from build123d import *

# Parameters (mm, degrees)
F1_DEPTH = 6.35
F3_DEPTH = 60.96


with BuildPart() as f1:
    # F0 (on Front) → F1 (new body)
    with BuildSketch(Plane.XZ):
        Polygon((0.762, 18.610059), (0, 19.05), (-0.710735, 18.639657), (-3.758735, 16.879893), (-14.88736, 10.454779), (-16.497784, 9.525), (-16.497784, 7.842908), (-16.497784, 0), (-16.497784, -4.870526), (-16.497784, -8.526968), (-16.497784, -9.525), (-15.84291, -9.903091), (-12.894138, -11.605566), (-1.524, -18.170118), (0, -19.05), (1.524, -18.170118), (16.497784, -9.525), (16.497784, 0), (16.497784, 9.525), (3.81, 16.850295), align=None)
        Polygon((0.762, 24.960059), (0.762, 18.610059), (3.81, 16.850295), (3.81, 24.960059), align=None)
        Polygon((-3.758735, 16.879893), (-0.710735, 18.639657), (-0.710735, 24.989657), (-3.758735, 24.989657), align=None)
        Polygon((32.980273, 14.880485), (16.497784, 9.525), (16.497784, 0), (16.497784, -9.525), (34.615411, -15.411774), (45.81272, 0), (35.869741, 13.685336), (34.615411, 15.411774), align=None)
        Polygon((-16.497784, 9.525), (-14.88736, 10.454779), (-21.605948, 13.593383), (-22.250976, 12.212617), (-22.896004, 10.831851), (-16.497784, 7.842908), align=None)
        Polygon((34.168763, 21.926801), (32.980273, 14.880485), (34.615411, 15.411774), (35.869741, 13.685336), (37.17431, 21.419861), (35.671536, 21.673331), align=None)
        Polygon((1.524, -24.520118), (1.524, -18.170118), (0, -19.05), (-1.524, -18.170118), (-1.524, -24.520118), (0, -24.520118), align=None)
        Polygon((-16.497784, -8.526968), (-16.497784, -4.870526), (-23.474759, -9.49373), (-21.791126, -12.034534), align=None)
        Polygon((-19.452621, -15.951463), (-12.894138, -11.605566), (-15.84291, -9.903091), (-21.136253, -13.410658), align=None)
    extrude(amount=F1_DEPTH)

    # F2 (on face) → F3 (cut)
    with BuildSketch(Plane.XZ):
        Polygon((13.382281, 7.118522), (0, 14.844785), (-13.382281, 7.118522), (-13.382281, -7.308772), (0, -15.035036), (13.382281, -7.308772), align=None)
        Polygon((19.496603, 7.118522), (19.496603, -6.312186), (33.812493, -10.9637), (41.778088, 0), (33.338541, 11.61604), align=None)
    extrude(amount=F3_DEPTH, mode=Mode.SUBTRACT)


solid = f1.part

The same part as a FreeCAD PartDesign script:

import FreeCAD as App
import Part
import Sketcher

V = App.Vector
Q = App.Units.Quantity

doc = App.newDocument("Part")
body = doc.addObject("PartDesign::Body", "Body")

sketch1 = doc.addObject("Sketcher::SketchObject", "Sketch")
body.addObject(sketch1)
sketch1.AttachmentSupport = (doc.XZ_Plane, [""])
sketch1.MapMode = "FlatFace"
sketch1.addGeometry(Part.LineSegment(V(0, 19.1, 0), V(-0.7, 18.6, 0)), False)
sketch1.addGeometry(Part.LineSegment(V(-0.7, 18.6, 0), V(-0.7, 25, 0)), False)
sketch1.addGeometry(Part.LineSegment(V(-0.7, 25, 0), V(-3.8, 25, 0)), False)
sketch1.addGeometry(Part.LineSegment(V(-3.8, 25, 0), V(-3.8, 16.9, 0)), False)
sketch1.addGeometry(Part.LineSegment(V(-3.8, 16.9, 0), V(-14.9, 10.5, 0)), False)
sketch1.addGeometry(Part.LineSegment(V(-14.9, 10.5, 0), V(-21.6, 13.6, 0)), False)
sketch1.addGeometry(Part.LineSegment(V(-21.6, 13.6, 0), V(-22.9, 10.8, 0)), False)
sketch1.addGeometry(Part.LineSegment(V(-22.9, 10.8, 0), V(-16.5, 7.8, 0)), False)
sketch1.addGeometry(Part.LineSegment(V(-16.5, 7.8, 0), V(-16.5, -4.9, 0)), False)
sketch1.addGeometry(Part.LineSegment(V(-16.5, -4.9, 0), V(-23.5, -9.5, 0)), False)
sketch1.addGeometry(Part.LineSegment(V(-23.5, -9.5, 0), V(-21.8, -12, 0)), False)
sketch1.addGeometry(Part.LineSegment(V(-21.8, -12, 0), V(-16.5, -8.5, 0)), False)
sketch1.addGeometry(Part.LineSegment(V(-16.5, -8.5, 0), V(-16.5, -9.5, 0)), False)
sketch1.addGeometry(Part.LineSegment(V(-16.5, -9.5, 0), V(-15.8, -9.9, 0)), False)
sketch1.addGeometry(Part.LineSegment(V(-15.8, -9.9, 0), V(-21.1, -13.4, 0)), False)
sketch1.addGeometry(Part.LineSegment(V(-21.1, -13.4, 0), V(-19.5, -16, 0)), False)
sketch1.addGeometry(Part.LineSegment(V(-19.5, -16, 0), V(-12.9, -11.6, 0)), False)
sketch1.addGeometry(Part.LineSegment(V(-12.9, -11.6, 0), V(-1.5, -18.2, 0)), False)
sketch1.addGeometry(Part.LineSegment(V(-1.5, -18.2, 0), V(-1.5, -24.5, 0)), False)
sketch1.addGeometry(Part.LineSegment(V(-1.5, -24.5, 0), V(1.5, -24.5, 0)), False)
sketch1.addGeometry(Part.LineSegment(V(1.5, -24.5, 0), V(1.5, -18.2, 0)), False)
sketch1.addGeometry(Part.LineSegment(V(1.5, -18.2, 0), V(16.5, -9.5, 0)), False)
sketch1.addGeometry(Part.LineSegment(V(16.5, -9.5, 0), V(34.6, -15.4, 0)), False)
sketch1.addGeometry(Part.LineSegment(V(34.6, -15.4, 0), V(45.8, 0, 0)), False)
sketch1.addGeometry(Part.LineSegment(V(45.8, 0, 0), V(35.9, 13.7, 0)), False)
sketch1.addGeometry(Part.LineSegment(V(35.9, 13.7, 0), V(37.2, 21.4, 0)), False)
sketch1.addGeometry(Part.LineSegment(V(37.2, 21.4, 0), V(35.7, 21.7, 0)), False)
sketch1.addGeometry(Part.LineSegment(V(35.7, 21.7, 0), V(34.2, 21.9, 0)), False)
sketch1.addGeometry(Part.LineSegment(V(34.2, 21.9, 0), V(33, 14.9, 0)), False)
sketch1.addGeometry(Part.LineSegment(V(33, 14.9, 0), V(16.5, 9.5, 0)), False)
sketch1.addGeometry(Part.LineSegment(V(16.5, 9.5, 0), V(3.8, 16.9, 0)), False)
sketch1.addGeometry(Part.LineSegment(V(3.8, 16.9, 0), V(3.8, 25, 0)), False)
sketch1.addGeometry(Part.LineSegment(V(3.8, 25, 0), V(0.8, 25, 0)), False)
sketch1.addGeometry(Part.LineSegment(V(0.8, 25, 0), V(0.8, 18.6, 0)), False)
sketch1.addGeometry(Part.LineSegment(V(0.8, 18.6, 0), V(0, 19.1, 0)), False)
sketch1.addConstraint(Sketcher.Constraint("Coincident", 0, 2, 1, 1))
sketch1.addConstraint(Sketcher.Constraint("Coincident", 1, 2, 2, 1))
sketch1.addConstraint(Sketcher.Constraint("Coincident", 2, 2, 3, 1))
sketch1.addConstraint(Sketcher.Constraint("Coincident", 3, 2, 4, 1))
sketch1.addConstraint(Sketcher.Constraint("Coincident", 4, 2, 5, 1))
sketch1.addConstraint(Sketcher.Constraint("Coincident", 5, 2, 6, 1))
sketch1.addConstraint(Sketcher.Constraint("Coincident", 6, 2, 7, 1))
sketch1.addConstraint(Sketcher.Constraint("Coincident", 7, 2, 8, 1))
sketch1.addConstraint(Sketcher.Constraint("Coincident", 8, 2, 9, 1))
sketch1.addConstraint(Sketcher.Constraint("Coincident", 9, 2, 10, 1))
sketch1.addConstraint(Sketcher.Constraint("Coincident", 10, 2, 11, 1))
sketch1.addConstraint(Sketcher.Constraint("Coincident", 11, 2, 12, 1))
sketch1.addConstraint(Sketcher.Constraint("Coincident", 12, 2, 13, 1))
sketch1.addConstraint(Sketcher.Constraint("Coincident", 13, 2, 14, 1))
sketch1.addConstraint(Sketcher.Constraint("Coincident", 14, 2, 15, 1))
sketch1.addConstraint(Sketcher.Constraint("Coincident", 15, 2, 16, 1))
sketch1.addConstraint(Sketcher.Constraint("Coincident", 16, 2, 17, 1))
sketch1.addConstraint(Sketcher.Constraint("Coincident", 17, 2, 18, 1))
sketch1.addConstraint(Sketcher.Constraint("Coincident", 18, 2, 19, 1))
sketch1.addConstraint(Sketcher.Constraint("Coincident", 19, 2, 20, 1))
sketch1.addConstraint(Sketcher.Constraint("Coincident", 20, 2, 21, 1))
sketch1.addConstraint(Sketcher.Constraint("Coincident", 21, 2, 22, 1))
sketch1.addConstraint(Sketcher.Constraint("Coincident", 22, 2, 23, 1))
sketch1.addConstraint(Sketcher.Constraint("Coincident", 23, 2, 24, 1))
sketch1.addConstraint(Sketcher.Constraint("Coincident", 24, 2, 25, 1))
sketch1.addConstraint(Sketcher.Constraint("Coincident", 25, 2, 26, 1))
sketch1.addConstraint(Sketcher.Constraint("Coincident", 26, 2, 27, 1))
sketch1.addConstraint(Sketcher.Constraint("Coincident", 27, 2, 28, 1))
sketch1.addConstraint(Sketcher.Constraint("Coincident", 28, 2, 29, 1))
sketch1.addConstraint(Sketcher.Constraint("Coincident", 29, 2, 30, 1))
sketch1.addConstraint(Sketcher.Constraint("Coincident", 30, 2, 31, 1))
sketch1.addConstraint(Sketcher.Constraint("Coincident", 31, 2, 32, 1))
sketch1.addConstraint(Sketcher.Constraint("Coincident", 32, 2, 33, 1))
sketch1.addConstraint(Sketcher.Constraint("Coincident", 33, 2, 34, 1))
sketch1.addConstraint(Sketcher.Constraint("Coincident", 34, 2, 0, 1))
sketch1.addConstraint(Sketcher.Constraint("Vertical", 1))
sketch1.addConstraint(Sketcher.Constraint("Horizontal", 2))
sketch1.addConstraint(Sketcher.Constraint("Vertical", 3))
sketch1.addConstraint(Sketcher.Constraint("Vertical", 8))
sketch1.addConstraint(Sketcher.Constraint("Vertical", 12))
sketch1.addConstraint(Sketcher.Constraint("Vertical", 18))
sketch1.addConstraint(Sketcher.Constraint("Horizontal", 19))
sketch1.addConstraint(Sketcher.Constraint("Vertical", 20))
sketch1.addConstraint(Sketcher.Constraint("Vertical", 31))
sketch1.addConstraint(Sketcher.Constraint("Horizontal", 32))
sketch1.addConstraint(Sketcher.Constraint("Vertical", 33))
sketch1.addConstraint(Sketcher.Constraint("Symmetric", 12, 2, 29, 2, -1, 1))
sketch1.addConstraint(Sketcher.Constraint("Symmetric", 17, 2, 20, 2, -2))
sketch1.addConstraint(Sketcher.Constraint("Symmetric", 12, 2, 21, 2, -2))
sketch1.addConstraint(Sketcher.Constraint("PointOnObject", 23, 2, -1))
sketch1.addConstraint(Sketcher.Constraint("PointOnObject", 34, 2, -2))
sketch1.addConstraint(Sketcher.Constraint("Parallel", 0, 4))
sketch1.addConstraint(Sketcher.Constraint("Perpendicular", 5, 6))
sketch1.addConstraint(Sketcher.Constraint("Perpendicular", 6, 7))
sketch1.addConstraint(Sketcher.Constraint("Perpendicular", 9, 10))
sketch1.addConstraint(Sketcher.Constraint("Perpendicular", 10, 11))
sketch1.addConstraint(Sketcher.Constraint("Parallel", 11, 14))
sketch1.addConstraint(Sketcher.Constraint("Perpendicular", 14, 15))
sketch1.addConstraint(Sketcher.Constraint("Perpendicular", 15, 16))
sketch1.addConstraint(Sketcher.Constraint("Parallel", 13, 17))
sketch1.addConstraint(Sketcher.Constraint("Parallel", 4, 21))
sketch1.addConstraint(Sketcher.Constraint("Perpendicular", 25, 26))
sketch1.addConstraint(Sketcher.Constraint("Parallel", 26, 27))
sketch1.addConstraint(Sketcher.Constraint("Perpendicular", 27, 28))
sketch1.addConstraint(Sketcher.Constraint("Parallel", 17, 30))
sketch1.addConstraint(Sketcher.Constraint("Parallel", 30, 34))
sketch1.addConstraint(Sketcher.Constraint("Vertical", 8, 2, 11, 2))
sketch1.addConstraint(Sketcher.Constraint("Equal", 2, 19))
sketch1.addConstraint(Sketcher.Constraint("Equal", 19, 32))
sketch1.addConstraint(Sketcher.Constraint("Equal", 1, 18))
sketch1.addConstraint(Sketcher.Constraint("Equal", 3, 31))
sketch1.addConstraint(Sketcher.Constraint("Equal", 20, 33))
sketch1.addConstraint(Sketcher.Constraint("Equal", 6, 10))
sketch1.addConstraint(Sketcher.Constraint("Equal", 11, 14))
sketch1.addConstraint(Sketcher.Constraint("Equal", 10, 15))
sketch1.addConstraint(Sketcher.Constraint("Equal", 22, 23))
sketch1.addConstraint(Sketcher.Constraint("Equal", 26, 27))
sketch1.addConstraint(Sketcher.Constraint("Angle", 0, Q("-150.000003 deg")))
sketch1.addConstraint(Sketcher.Constraint("Angle", 17, Q("-29.999999 deg")))
sketch1.addConstraint(Sketcher.Constraint("Angle", 22, Q("-18 deg")))
sketch1.addConstraint(Sketcher.Constraint("Angle", 23, Q("54.000001 deg")))
sketch1.addConstraint(Sketcher.Constraint("Angle", 24, Q("126.000001 deg")))
sketch1.addConstraint(Sketcher.Constraint("Angle", 29, Q("-162.000001 deg")))
sketch1.addConstraint(Sketcher.Constraint("DistanceX", 2, 2, 2, 1, Q("0.12 in")))
sketch1.addConstraint(Sketcher.Constraint("DistanceY", 1, 1, 1, 2, Q("0.25 in")))
sketch1.addConstraint(Sketcher.Constraint("Distance", 6, Q("0.12 in")))
sketch1.addConstraint(Sketcher.Constraint("Distance", 11, Q("0.25 in")))
sketch1.addConstraint(Sketcher.Constraint("Distance", 22, Q("0.75 in")))
sketch1.addConstraint(Sketcher.Constraint("Distance", 26, Q("0.06 in")))
sketch1.addConstraint(Sketcher.Constraint("DistanceX", -1, 1, 30, 2, Q("0.15 in")))
sketch1.addConstraint(Sketcher.Constraint("DistanceY", -1, 1, 34, 2, Q("0.75 in")))
sketch1.addConstraint(Sketcher.Constraint("DistanceY", -1, 1, 27, 2, Q("21.926801 mm")))
sketch1.addConstraint(Sketcher.Constraint("DistanceX", 9, 2, 4, 2, Q("8.587399 mm")))
sketch1.addConstraint(Sketcher.Constraint("DistanceX", 22, 2, 25, 2, Q("2.558899 mm")))
sketch1.addConstraint(Sketcher.Constraint("DistanceY", 30, 2, 3, 2, Q("0.029598 mm")))
sketch1.addConstraint(Sketcher.Constraint("Distance", 4, Q("12.850229 mm")))
sketch1.addConstraint(Sketcher.Constraint("Distance", 5, Q("7.415542 mm")))
sketch1.addConstraint(Sketcher.Constraint("Distance", 7, Q("7.06194 mm")))
sketch1.addConstraint(Sketcher.Constraint("Distance", 9, Q("8.369719 mm")))
sketch1.addConstraint(Sketcher.Constraint("DistanceY", 8, 2, 8, 1, Q("12.713434 mm")))
sketch1.addConstraint(Sketcher.Constraint("DistanceX", 13, 2, -1, 1, Q("15.84291 mm")))
sketch1.addConstraint(Sketcher.Constraint("DistanceX", -1, 1, 24, 2, Q("35.869741 mm")))
pad1 = doc.addObject("PartDesign::Pad", "Pad")
body.addObject(pad1)
pad1.Profile = sketch1
pad1.Length = Q("0.25 in")

sketch2 = doc.addObject("Sketcher::SketchObject", "Sketch001")
body.addObject(sketch2)
sketch2.AttachmentSupport = (doc.XZ_Plane, [""])
sketch2.MapMode = "FlatFace"
sketch2.addGeometry(Part.LineSegment(V(13, 7, 0), V(0, 15, 0)), False)
sketch2.addGeometry(Part.LineSegment(V(0, 15, 0), V(-13, 7, 0)), False)
sketch2.addGeometry(Part.LineSegment(V(-13, 7, 0), V(-13, -7, 0)), False)
sketch2.addGeometry(Part.LineSegment(V(-13, -7, 0), V(0, -15, 0)), False)
sketch2.addGeometry(Part.LineSegment(V(0, -15, 0), V(13, -7, 0)), False)
sketch2.addGeometry(Part.LineSegment(V(13, -7, 0), V(13, 7, 0)), False)
sketch2.addGeometry(Part.LineSegment(V(19, 7, 0), V(19, -6, 0)), False)
sketch2.addGeometry(Part.LineSegment(V(19, -6, 0), V(34, -11, 0)), False)
sketch2.addGeometry(Part.LineSegment(V(34, -11, 0), V(42, 0, 0)), False)
sketch2.addGeometry(Part.LineSegment(V(42, 0, 0), V(33, 12, 0)), False)
sketch2.addGeometry(Part.LineSegment(V(33, 12, 0), V(19, 7, 0)), False)
sketch2.addConstraint(Sketcher.Constraint("Coincident", 0, 2, 1, 1))
sketch2.addConstraint(Sketcher.Constraint("Coincident", 1, 2, 2, 1))
sketch2.addConstraint(Sketcher.Constraint("Coincident", 2, 2, 3, 1))
sketch2.addConstraint(Sketcher.Constraint("Coincident", 3, 2, 4, 1))
sketch2.addConstraint(Sketcher.Constraint("Coincident", 4, 2, 5, 1))
sketch2.addConstraint(Sketcher.Constraint("Coincident", 5, 2, 0, 1))
sketch2.addConstraint(Sketcher.Constraint("Coincident", 6, 2, 7, 1))
sketch2.addConstraint(Sketcher.Constraint("Coincident", 7, 2, 8, 1))
sketch2.addConstraint(Sketcher.Constraint("Coincident", 8, 2, 9, 1))
sketch2.addConstraint(Sketcher.Constraint("Coincident", 9, 2, 10, 1))
sketch2.addConstraint(Sketcher.Constraint("Coincident", 10, 2, 6, 1))
sketch2.addConstraint(Sketcher.Constraint("Vertical", 2))
sketch2.addConstraint(Sketcher.Constraint("Vertical", 5))
sketch2.addConstraint(Sketcher.Constraint("Vertical", 6))
sketch2.addConstraint(Sketcher.Constraint("Symmetric", 2, 2, 4, 2, -2))
sketch2.addConstraint(Sketcher.Constraint("PointOnObject", 0, 2, -2))
sketch2.addConstraint(Sketcher.Constraint("PointOnObject", 3, 2, -2))
sketch2.addConstraint(Sketcher.Constraint("PointOnObject", 8, 2, -1))
sketch2.addConstraint(Sketcher.Constraint("Parallel", 0, 3))
sketch2.addConstraint(Sketcher.Constraint("Parallel", 1, 4))
sketch2.addConstraint(Sketcher.Constraint("Horizontal", 5, 2, 10, 2))
sketch2.addConstraint(Sketcher.Constraint("Angle", 0, Q("150.000002 deg")))
sketch2.addConstraint(Sketcher.Constraint("Angle", 7, Q("-17.999998 deg")))
sketch2.addConstraint(Sketcher.Constraint("Angle", 8, Q("53.999998 deg")))
sketch2.addConstraint(Sketcher.Constraint("Angle", 9, Q("126 deg")))
sketch2.addConstraint(Sketcher.Constraint("Angle", 10, Q("-162.000001 deg")))
sketch2.addConstraint(Sketcher.Constraint("DistanceY", 7, 2, -1, 1, Q("10.9637 mm")))
sketch2.addConstraint(Sketcher.Constraint("DistanceY", 2, 2, 2, 1, Q("14.427294 mm")))
sketch2.addConstraint(Sketcher.Constraint("DistanceY", 6, 2, 6, 1, Q("13.430708 mm")))
sketch2.addConstraint(Sketcher.Constraint("DistanceX", 1, 2, -1, 1, Q("13.382281 mm")))
sketch2.addConstraint(Sketcher.Constraint("DistanceY", -1, 1, 1, 2, Q("7.118522 mm")))
sketch2.addConstraint(Sketcher.Constraint("DistanceX", -1, 1, 9, 2, Q("33.338541 mm")))
pocket1 = doc.addObject("PartDesign::Pocket", "Pocket")
body.addObject(pocket1)
pocket1.Profile = sketch2
pocket1.Length = Q("2.4 in")
pocket1.Reversed = True

doc.recompute()
